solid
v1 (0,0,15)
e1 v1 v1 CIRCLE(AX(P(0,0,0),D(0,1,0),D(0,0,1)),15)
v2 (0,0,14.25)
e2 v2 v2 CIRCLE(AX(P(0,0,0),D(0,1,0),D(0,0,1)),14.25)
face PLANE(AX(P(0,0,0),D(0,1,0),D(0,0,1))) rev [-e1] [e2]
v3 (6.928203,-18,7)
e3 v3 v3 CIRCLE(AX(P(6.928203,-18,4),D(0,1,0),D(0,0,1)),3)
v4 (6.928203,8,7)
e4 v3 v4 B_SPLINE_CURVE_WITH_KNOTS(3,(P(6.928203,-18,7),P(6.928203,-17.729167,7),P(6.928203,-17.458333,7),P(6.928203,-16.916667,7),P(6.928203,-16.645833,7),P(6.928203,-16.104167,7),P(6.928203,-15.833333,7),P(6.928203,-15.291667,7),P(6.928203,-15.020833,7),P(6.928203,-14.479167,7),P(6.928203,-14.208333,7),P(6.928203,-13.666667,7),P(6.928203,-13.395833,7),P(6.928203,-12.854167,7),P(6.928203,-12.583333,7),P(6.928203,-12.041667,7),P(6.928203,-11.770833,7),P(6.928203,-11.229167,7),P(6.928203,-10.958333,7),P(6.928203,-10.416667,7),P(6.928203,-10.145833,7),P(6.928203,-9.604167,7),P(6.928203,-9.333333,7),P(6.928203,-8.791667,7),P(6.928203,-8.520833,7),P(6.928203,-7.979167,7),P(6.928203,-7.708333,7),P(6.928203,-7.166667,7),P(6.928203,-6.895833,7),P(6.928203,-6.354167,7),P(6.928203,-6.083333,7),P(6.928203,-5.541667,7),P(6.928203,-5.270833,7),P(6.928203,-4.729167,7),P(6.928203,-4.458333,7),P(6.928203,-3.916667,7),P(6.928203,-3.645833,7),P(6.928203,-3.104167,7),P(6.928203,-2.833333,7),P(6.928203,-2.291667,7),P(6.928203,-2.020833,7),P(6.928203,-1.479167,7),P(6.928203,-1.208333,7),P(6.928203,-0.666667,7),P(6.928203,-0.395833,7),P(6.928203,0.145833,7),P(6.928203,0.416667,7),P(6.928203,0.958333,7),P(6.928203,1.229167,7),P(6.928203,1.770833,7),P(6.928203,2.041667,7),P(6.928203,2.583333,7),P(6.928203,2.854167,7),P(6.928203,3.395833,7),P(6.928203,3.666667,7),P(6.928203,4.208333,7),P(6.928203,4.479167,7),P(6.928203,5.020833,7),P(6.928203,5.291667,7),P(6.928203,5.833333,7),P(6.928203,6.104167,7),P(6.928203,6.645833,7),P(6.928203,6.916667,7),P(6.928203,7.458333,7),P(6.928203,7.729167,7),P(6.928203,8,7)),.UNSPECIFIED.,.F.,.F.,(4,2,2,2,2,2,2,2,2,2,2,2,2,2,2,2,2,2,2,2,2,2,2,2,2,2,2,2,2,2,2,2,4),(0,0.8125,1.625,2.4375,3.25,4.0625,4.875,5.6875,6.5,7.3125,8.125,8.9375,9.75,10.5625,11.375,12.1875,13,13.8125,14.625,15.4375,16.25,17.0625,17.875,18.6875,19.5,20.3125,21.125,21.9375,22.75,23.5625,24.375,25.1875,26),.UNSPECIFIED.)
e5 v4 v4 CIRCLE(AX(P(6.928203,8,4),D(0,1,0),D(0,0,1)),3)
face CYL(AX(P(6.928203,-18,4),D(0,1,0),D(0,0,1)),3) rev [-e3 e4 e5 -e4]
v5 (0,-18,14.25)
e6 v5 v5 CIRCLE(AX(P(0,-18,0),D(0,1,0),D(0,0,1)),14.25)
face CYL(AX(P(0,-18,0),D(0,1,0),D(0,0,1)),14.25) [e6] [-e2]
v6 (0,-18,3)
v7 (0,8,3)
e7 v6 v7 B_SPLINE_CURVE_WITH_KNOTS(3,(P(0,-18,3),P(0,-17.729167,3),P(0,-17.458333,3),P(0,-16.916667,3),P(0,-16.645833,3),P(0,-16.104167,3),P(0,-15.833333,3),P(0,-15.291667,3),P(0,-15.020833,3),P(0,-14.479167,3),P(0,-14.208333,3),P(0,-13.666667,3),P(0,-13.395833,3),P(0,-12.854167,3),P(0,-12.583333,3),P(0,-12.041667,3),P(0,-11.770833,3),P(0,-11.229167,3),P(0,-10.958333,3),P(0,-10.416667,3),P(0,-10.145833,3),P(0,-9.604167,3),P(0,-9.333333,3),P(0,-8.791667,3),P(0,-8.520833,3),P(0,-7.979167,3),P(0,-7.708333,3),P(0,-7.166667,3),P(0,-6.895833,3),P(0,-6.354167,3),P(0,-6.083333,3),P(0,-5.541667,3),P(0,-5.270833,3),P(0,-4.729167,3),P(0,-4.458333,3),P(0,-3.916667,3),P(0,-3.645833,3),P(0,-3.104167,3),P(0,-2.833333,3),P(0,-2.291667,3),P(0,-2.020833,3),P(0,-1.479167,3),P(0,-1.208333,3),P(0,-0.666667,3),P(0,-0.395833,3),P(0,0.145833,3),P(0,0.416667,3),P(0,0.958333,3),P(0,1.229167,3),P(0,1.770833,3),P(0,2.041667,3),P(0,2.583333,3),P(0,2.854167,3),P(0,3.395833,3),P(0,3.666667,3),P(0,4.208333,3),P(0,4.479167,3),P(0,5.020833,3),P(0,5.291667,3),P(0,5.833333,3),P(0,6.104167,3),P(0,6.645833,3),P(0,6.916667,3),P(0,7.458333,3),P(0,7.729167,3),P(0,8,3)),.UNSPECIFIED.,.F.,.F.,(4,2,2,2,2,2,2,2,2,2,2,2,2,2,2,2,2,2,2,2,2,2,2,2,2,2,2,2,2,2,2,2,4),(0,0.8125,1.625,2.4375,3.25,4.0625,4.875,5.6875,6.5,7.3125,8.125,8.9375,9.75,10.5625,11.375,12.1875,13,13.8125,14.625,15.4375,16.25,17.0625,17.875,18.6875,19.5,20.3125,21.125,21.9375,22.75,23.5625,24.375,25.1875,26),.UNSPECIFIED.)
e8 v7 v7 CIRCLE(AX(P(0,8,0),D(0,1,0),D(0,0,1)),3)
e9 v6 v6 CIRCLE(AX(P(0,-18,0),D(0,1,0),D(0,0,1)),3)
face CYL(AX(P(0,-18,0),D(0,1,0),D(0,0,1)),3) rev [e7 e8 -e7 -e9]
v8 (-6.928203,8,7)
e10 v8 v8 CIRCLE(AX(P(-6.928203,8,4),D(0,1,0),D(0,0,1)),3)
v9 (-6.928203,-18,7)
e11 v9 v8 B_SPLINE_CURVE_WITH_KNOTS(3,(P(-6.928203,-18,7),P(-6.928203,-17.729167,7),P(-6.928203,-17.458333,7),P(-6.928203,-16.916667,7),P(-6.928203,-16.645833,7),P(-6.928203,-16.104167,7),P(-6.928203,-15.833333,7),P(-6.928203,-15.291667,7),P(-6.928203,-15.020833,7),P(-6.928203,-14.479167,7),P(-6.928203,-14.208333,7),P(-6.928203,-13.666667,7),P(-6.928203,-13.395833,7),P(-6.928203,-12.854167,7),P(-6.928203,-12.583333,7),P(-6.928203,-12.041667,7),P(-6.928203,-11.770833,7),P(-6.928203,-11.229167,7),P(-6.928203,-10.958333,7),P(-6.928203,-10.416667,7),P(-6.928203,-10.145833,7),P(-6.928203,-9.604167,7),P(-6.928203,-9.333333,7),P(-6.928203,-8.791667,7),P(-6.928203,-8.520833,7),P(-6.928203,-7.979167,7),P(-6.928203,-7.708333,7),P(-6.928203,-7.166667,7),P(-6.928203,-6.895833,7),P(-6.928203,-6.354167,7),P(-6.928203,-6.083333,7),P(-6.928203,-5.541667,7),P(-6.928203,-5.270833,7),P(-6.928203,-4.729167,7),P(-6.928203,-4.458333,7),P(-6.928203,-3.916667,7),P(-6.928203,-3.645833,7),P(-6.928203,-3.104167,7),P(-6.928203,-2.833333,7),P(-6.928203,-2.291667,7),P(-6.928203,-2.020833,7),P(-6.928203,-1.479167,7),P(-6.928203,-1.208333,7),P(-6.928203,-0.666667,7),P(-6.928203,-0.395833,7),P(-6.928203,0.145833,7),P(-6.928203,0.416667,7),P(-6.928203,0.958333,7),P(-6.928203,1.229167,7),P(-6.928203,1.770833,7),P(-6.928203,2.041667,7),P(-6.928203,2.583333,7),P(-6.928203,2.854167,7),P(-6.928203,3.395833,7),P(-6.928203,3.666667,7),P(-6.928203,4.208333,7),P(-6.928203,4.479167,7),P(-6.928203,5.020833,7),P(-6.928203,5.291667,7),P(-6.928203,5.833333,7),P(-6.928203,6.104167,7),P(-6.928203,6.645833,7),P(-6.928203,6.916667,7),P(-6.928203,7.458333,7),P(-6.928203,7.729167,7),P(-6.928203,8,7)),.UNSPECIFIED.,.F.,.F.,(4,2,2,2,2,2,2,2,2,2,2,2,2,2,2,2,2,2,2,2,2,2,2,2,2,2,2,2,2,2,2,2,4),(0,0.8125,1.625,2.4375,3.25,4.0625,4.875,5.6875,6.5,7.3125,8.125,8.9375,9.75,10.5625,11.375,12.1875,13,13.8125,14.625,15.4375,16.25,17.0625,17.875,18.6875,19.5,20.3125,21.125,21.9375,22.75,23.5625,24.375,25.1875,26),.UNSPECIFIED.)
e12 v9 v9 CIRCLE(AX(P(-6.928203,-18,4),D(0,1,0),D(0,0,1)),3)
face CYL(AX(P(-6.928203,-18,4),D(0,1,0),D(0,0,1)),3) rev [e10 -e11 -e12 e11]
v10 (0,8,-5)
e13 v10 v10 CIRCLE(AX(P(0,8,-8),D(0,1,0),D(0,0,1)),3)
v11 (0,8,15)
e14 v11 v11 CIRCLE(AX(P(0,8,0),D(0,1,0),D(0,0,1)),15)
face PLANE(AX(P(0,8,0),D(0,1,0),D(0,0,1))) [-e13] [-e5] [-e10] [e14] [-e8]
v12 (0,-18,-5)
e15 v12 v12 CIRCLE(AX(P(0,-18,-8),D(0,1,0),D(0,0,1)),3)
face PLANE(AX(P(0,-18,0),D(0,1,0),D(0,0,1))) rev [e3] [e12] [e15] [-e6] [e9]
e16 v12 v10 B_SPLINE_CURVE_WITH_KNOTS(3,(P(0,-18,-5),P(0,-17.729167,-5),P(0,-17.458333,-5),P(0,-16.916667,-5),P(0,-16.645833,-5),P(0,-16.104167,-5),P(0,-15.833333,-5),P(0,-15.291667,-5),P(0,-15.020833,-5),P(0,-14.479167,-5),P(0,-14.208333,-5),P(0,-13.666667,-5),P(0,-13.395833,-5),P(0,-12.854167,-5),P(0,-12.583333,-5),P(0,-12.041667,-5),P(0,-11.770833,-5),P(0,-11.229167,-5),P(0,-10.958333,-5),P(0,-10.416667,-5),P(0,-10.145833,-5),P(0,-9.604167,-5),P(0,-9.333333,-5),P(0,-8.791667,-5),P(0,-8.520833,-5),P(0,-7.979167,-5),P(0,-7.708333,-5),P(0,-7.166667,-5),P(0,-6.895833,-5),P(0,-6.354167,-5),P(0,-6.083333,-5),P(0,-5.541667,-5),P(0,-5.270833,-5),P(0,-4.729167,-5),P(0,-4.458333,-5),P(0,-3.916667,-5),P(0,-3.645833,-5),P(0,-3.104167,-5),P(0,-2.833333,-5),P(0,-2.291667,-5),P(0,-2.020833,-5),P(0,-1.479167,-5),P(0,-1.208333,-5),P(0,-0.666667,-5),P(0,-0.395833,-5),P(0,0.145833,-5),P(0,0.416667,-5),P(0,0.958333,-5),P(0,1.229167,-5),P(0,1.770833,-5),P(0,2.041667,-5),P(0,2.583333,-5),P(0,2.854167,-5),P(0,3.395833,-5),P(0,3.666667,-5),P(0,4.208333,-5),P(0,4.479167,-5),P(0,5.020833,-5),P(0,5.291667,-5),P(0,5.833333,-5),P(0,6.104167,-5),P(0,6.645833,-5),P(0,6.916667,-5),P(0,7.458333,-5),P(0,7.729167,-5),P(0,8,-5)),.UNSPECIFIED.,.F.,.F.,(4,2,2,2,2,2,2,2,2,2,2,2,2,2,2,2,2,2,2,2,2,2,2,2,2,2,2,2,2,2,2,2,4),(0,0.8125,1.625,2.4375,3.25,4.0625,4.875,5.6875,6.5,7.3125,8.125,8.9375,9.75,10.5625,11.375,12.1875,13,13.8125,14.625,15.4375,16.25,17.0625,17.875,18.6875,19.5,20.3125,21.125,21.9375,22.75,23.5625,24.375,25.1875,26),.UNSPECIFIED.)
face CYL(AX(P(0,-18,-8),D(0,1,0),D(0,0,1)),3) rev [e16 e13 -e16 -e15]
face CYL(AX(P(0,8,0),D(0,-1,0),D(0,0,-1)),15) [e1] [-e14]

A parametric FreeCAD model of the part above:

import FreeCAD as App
import Part
import Sketcher

V = App.Vector
Q = App.Units.Quantity

doc = App.newDocument("Part")
body = doc.addObject("PartDesign::Body", "Body")

# Sketch on XZ plane
sketch1 = body.newObject("Sketcher::SketchObject", "Sketch")
sketch1.AttachmentSupport = (doc.getObject("XZ_Plane"), [""])
sketch1.MapMode = "FlatFace"
sketch1.addGeometry(Part.Circle(V(0, 0, 0), V(0, 0, 1), 15), False)
sketch1.addConstraint([
    Sketcher.Constraint("Coincident", 0, 3, -1, 1),
    Sketcher.Constraint("Diameter", 0, Q("30 mm")),
])
pad1 = body.newObject("PartDesign::Pad", "Pad")
pad1.Profile = sketch1
pad1.Length = 8
pad1.Reversed = True

# Sketch on XZ plane
sketch2 = body.newObject("Sketcher::SketchObject", "Sketch001")
sketch2.AttachmentSupport = (doc.getObject("XZ_Plane"), [""])
sketch2.MapMode = "FlatFace"
sketch2.addGeometry(Part.Circle(V(0, 0, 0), V(0, 0, 1), 14), False)
sketch2.addConstraint([
    Sketcher.Constraint("Coincident", 0, 3, -1, 1),
    Sketcher.Constraint("Diameter", 0, Q("28.5 mm")),
])
pad2 = body.newObject("PartDesign::Pad", "Pad001")
pad2.Profile = sketch2
pad2.Length = 18

# Sketch on XZ plane
sketch3 = body.newObject("Sketcher::SketchObject", "Sketch002")
sketch3.AttachmentSupport = (doc.getObject("XZ_Plane"), [""])
sketch3.MapMode = "FlatFace"
sketch3.AttachmentOffset = App.Placement(V(0, 0, -8), App.Rotation())
sketch3.addGeometry([
    Part.Circle(V(0, 0, 0), V(0, 0, 1), 3),
    Part.Circle(V(0, -8, 0), V(0, 0, 1), 3),
    Part.Circle(V(6.9, 4, 0), V(0, 0, 1), 3),
    Part.Circle(V(-6.9, 4, 0), V(0, 0, 1), 3),
], False)
sketch3.addConstraint([
    Sketcher.Constraint("Coincident", 0, 3, -1, 1),
    Sketcher.Constraint("Equal", 0, 1),
    Sketcher.Constraint("Equal", 1, 2),
    Sketcher.Constraint("Equal", 2, 3),
    Sketcher.Constraint("Symmetric", 2, 3, 3, 3, -2),
    Sketcher.Constraint("PointOnObject", 1, 3, -2),
    Sketcher.Constraint("Diameter", 0, Q("6 mm")),
    Sketcher.Constraint("DistanceY", 1, 3, -1, 1, Q("8 mm")),
    Sketcher.Constraint("DistanceY", -1, 1, 2, 3, Q("4 mm")),
    Sketcher.Constraint("DistanceX", -1, 1, 2, 3, Q("6.928203 mm")),
])
pocket1 = body.newObject("PartDesign::Pocket", "Pocket")
pocket1.Profile = sketch3
pocket1.Type = "ThroughAll"
pocket1.Reversed = True

doc.recompute()
